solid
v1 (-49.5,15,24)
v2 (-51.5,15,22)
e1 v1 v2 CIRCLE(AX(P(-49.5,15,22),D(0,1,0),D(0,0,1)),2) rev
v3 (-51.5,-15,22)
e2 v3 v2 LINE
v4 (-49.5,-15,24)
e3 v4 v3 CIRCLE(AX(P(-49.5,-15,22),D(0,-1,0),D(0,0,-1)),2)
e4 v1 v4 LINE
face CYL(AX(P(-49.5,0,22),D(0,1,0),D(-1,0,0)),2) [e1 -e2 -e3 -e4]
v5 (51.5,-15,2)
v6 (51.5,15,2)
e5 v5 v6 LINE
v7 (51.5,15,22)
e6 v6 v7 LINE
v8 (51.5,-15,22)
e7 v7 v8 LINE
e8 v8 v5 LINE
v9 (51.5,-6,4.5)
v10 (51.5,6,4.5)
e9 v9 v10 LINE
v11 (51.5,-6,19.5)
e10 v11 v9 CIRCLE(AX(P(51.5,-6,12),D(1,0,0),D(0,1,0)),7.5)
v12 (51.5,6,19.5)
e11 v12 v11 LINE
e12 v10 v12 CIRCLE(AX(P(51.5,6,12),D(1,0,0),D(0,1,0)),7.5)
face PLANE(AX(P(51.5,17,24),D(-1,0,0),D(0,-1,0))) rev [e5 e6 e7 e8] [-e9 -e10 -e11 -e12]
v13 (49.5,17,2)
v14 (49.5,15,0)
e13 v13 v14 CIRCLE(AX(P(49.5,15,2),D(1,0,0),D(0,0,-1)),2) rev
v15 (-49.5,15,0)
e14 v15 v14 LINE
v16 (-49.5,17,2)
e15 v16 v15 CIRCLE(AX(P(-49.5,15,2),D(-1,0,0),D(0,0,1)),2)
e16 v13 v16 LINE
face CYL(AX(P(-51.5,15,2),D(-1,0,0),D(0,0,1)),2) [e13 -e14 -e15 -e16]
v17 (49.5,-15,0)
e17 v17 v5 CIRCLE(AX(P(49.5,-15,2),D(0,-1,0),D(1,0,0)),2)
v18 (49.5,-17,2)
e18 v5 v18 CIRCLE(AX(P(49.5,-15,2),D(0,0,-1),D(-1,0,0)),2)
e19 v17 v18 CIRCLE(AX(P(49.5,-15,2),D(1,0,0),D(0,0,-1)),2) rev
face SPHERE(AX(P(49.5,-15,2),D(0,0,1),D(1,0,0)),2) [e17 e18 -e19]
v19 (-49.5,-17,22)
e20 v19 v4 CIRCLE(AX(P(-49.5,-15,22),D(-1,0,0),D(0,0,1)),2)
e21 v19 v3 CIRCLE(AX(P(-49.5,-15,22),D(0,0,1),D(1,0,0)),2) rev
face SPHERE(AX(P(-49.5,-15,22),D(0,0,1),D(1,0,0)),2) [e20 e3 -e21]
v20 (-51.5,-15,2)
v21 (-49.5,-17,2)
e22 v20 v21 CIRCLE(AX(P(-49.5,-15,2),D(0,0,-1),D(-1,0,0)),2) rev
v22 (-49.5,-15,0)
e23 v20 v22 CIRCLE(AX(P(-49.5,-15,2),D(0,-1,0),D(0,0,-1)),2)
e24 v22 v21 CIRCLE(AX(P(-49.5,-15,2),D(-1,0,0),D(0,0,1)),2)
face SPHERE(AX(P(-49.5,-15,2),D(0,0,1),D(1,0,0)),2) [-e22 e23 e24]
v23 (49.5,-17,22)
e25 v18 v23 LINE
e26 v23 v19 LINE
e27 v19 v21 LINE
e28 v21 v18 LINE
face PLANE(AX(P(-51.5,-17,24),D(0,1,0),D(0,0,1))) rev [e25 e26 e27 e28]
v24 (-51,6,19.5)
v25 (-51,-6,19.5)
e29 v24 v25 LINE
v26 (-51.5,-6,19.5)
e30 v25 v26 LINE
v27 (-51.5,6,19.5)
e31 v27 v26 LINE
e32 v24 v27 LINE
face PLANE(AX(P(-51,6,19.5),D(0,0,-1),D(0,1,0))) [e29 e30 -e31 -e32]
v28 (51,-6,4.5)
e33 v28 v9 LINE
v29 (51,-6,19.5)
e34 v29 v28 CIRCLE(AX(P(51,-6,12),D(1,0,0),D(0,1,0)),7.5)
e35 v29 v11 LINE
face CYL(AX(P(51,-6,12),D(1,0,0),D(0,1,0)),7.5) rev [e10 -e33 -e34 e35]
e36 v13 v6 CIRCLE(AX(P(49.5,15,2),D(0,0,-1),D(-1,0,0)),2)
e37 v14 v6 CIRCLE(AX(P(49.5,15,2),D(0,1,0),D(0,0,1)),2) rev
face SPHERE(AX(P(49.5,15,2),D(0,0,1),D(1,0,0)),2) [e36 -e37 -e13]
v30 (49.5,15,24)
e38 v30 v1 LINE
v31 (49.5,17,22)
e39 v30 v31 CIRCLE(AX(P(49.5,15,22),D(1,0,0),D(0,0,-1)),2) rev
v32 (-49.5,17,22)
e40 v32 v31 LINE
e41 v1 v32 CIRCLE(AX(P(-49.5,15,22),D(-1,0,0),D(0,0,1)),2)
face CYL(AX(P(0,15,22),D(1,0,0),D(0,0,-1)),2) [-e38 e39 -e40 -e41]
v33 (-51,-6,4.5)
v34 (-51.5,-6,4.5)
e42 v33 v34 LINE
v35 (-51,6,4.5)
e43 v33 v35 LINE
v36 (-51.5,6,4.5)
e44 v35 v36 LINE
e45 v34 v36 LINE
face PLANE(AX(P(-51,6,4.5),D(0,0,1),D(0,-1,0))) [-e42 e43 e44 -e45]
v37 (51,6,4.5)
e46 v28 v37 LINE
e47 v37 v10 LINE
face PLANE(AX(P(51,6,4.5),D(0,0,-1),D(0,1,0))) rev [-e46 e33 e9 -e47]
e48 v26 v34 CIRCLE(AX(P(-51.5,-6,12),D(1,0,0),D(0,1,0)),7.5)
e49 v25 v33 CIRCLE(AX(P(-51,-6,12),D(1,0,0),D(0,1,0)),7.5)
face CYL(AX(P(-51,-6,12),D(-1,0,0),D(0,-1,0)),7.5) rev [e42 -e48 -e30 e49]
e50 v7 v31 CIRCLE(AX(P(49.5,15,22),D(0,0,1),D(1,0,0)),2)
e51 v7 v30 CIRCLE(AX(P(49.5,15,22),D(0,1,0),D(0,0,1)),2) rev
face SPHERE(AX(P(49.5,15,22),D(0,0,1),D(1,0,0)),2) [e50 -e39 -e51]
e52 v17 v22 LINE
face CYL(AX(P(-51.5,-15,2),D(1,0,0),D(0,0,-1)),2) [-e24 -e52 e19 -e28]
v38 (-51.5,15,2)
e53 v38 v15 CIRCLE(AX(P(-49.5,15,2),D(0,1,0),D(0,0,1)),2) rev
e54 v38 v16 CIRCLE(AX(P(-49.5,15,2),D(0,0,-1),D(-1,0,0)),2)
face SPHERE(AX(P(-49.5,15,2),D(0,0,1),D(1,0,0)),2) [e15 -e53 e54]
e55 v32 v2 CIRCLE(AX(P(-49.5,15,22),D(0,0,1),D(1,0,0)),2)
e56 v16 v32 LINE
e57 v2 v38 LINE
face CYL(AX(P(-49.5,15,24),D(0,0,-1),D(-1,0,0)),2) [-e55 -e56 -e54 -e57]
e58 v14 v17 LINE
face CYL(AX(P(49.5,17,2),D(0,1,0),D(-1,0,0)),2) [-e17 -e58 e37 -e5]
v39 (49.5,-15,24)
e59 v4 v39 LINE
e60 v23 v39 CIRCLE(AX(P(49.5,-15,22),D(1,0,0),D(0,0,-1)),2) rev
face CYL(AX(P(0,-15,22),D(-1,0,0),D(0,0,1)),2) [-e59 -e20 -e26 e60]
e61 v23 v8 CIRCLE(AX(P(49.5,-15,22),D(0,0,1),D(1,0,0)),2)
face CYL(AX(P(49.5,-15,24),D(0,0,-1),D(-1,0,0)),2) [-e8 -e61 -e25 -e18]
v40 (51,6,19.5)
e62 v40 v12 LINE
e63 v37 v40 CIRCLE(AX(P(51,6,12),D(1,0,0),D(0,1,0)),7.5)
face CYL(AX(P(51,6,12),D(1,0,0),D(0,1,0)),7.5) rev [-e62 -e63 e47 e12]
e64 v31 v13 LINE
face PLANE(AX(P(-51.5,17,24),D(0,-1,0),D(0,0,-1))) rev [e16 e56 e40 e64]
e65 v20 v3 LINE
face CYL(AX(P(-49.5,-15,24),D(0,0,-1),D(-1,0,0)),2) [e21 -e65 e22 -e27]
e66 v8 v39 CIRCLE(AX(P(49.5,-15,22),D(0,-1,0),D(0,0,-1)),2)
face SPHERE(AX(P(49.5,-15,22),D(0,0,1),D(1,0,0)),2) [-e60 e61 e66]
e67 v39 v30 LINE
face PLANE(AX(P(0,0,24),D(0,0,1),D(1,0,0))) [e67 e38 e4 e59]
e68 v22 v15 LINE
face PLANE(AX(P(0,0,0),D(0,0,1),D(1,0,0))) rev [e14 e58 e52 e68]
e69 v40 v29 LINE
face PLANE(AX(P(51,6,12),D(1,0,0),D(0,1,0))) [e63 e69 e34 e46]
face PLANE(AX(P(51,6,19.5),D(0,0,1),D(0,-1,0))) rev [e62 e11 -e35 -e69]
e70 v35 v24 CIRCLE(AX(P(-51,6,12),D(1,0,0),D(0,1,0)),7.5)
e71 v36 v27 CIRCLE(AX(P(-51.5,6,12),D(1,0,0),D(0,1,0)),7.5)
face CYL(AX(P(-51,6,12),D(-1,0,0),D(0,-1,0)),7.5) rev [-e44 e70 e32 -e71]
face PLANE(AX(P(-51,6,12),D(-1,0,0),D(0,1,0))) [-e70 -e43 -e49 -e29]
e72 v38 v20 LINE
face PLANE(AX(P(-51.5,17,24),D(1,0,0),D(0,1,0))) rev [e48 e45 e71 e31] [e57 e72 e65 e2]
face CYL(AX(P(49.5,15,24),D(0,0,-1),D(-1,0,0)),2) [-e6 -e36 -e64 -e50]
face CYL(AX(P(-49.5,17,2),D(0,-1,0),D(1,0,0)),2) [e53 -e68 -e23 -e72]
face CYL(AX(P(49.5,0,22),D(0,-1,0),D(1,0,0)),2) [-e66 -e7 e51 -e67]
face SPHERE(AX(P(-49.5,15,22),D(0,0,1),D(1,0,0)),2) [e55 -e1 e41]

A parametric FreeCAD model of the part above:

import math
import FreeCAD as App
import Part
import Sketcher

V = App.Vector


def edges_at(feature, points):
    """Names of the edges that pass closest to the given points."""
    edges = feature.Shape.Edges
    near = lambda p: min(range(len(edges)), key=lambda i: edges[i].distToShape(Part.Vertex(*p))[0])
    return sorted({f"Edge{near(p) + 1}" for p in points})

doc = App.newDocument("Part")
body = doc.addObject("PartDesign::Body", "Body")

# Sketch on XY plane
sketch1 = body.newObject("Sketcher::SketchObject", "Sketch")
sketch1.AttachmentSupport = (doc.getObject("XY_Plane"), [""])
sketch1.MapMode = "FlatFace"
sketch1.addGeometry([
    Part.LineSegment(V(-52, 17, 0), V(-52, -17, 0)),
    Part.LineSegment(V(-52, -17, 0), V(52, -17, 0)),
    Part.LineSegment(V(52, -17, 0), V(52, 17, 0)),
    Part.LineSegment(V(52, 17, 0), V(-52, 17, 0)),
], False)
sketch1.addConstraint([
    Sketcher.Constraint("Coincident", 0, 2, 1, 1),
    Sketcher.Constraint("Coincident", 1, 2, 2, 1),
    Sketcher.Constraint("Coincident", 2, 2, 3, 1),
    Sketcher.Constraint("Coincident", 3, 2, 0, 1),
    Sketcher.Constraint("Vertical", 0),
    Sketcher.Constraint("Horizontal", 1),
    Sketcher.Constraint("Vertical", 2),
    Sketcher.Constraint("Horizontal", 3),
    Sketcher.Constraint("Symmetric", 0, 2, 2, 2, -1, 1),
    Sketcher.Constraint("DistanceX", 1, 1, 1, 2, 103.0),
    Sketcher.Constraint("DistanceY", 0, 2, 0, 1, 34.0),
])
pad1 = body.newObject("PartDesign::Pad", "Pad")
pad1.Profile = sketch1
pad1.Length = 24

# Sketch on YZ plane
sketch2 = body.newObject("Sketcher::SketchObject", "Sketch001")
sketch2.AttachmentSupport = (doc.getObject("YZ_Plane"), [""])
sketch2.MapMode = "FlatFace"
sketch2.AttachmentOffset = App.Placement(V(0, 0, 51.5), App.Rotation())
sketch2.addGeometry([
    Part.LineSegment(V(-6, 4, 0), V(6, 4, 0)),
    Part.ArcOfCircle(Part.Circle(V(6, 12, 0), V(0, 0, 1), 8), math.radians(-90), math.radians(90)),
    Part.LineSegment(V(6, 20, 0), V(-6, 20, 0)),
    Part.ArcOfCircle(Part.Circle(V(-6, 12, 0), V(0, 0, 1), 8), math.radians(90), math.radians(270)),
], False)
sketch2.addConstraint([
    Sketcher.Constraint("Tangent", 0, 2, 1, 1),
    Sketcher.Constraint("Tangent", 1, 2, 2, 1),
    Sketcher.Constraint("Tangent", 2, 2, 3, 1),
    Sketcher.Constraint("Tangent", 3, 2, 0, 1),
    Sketcher.Constraint("Horizontal", 0),
    Sketcher.Constraint("Horizontal", 2),
    Sketcher.Constraint("Radius", 1, 7.5),
    Sketcher.Constraint("DistanceX", 0, 1, 0, 2, 12.0),
    Sketcher.Constraint("DistanceX", -1, 1, 1, 3, 6.0),
    Sketcher.Constraint("DistanceY", -1, 1, 1, 3, 12.0),
])
pocket1 = body.newObject("PartDesign::Pocket", "Pocket")
pocket1.Profile = sketch2
pocket1.Length = 0.5
doc.recompute()

mirrored = body.newObject("PartDesign::Mirrored", "Mirrored")
mirrored.Originals = [pocket1]
mirrored.MirrorPlane = (doc.getObject("YZ_Plane"), [""])
body.Tip = mirrored
doc.recompute()

fillet = body.newObject("PartDesign::Fillet", "Fillet")
fillet.Base = (mirrored, edges_at(mirrored, [
    (-51.5, 0, 24),
    (0, -17, 24),
    (51.5, 0, 24),
    (0, -17, 0),
    (-51.5, 0, 0),
    (0, 17, 0),
    (51.5, 0, 0),
    (0, 17, 24),
    (51.5, -17, 12),
    (-51.5, -17, 12),
    (-51.5, 17, 12),
    (51.5, 17, 12),
]))
fillet.Radius = 2

doc.recompute()
